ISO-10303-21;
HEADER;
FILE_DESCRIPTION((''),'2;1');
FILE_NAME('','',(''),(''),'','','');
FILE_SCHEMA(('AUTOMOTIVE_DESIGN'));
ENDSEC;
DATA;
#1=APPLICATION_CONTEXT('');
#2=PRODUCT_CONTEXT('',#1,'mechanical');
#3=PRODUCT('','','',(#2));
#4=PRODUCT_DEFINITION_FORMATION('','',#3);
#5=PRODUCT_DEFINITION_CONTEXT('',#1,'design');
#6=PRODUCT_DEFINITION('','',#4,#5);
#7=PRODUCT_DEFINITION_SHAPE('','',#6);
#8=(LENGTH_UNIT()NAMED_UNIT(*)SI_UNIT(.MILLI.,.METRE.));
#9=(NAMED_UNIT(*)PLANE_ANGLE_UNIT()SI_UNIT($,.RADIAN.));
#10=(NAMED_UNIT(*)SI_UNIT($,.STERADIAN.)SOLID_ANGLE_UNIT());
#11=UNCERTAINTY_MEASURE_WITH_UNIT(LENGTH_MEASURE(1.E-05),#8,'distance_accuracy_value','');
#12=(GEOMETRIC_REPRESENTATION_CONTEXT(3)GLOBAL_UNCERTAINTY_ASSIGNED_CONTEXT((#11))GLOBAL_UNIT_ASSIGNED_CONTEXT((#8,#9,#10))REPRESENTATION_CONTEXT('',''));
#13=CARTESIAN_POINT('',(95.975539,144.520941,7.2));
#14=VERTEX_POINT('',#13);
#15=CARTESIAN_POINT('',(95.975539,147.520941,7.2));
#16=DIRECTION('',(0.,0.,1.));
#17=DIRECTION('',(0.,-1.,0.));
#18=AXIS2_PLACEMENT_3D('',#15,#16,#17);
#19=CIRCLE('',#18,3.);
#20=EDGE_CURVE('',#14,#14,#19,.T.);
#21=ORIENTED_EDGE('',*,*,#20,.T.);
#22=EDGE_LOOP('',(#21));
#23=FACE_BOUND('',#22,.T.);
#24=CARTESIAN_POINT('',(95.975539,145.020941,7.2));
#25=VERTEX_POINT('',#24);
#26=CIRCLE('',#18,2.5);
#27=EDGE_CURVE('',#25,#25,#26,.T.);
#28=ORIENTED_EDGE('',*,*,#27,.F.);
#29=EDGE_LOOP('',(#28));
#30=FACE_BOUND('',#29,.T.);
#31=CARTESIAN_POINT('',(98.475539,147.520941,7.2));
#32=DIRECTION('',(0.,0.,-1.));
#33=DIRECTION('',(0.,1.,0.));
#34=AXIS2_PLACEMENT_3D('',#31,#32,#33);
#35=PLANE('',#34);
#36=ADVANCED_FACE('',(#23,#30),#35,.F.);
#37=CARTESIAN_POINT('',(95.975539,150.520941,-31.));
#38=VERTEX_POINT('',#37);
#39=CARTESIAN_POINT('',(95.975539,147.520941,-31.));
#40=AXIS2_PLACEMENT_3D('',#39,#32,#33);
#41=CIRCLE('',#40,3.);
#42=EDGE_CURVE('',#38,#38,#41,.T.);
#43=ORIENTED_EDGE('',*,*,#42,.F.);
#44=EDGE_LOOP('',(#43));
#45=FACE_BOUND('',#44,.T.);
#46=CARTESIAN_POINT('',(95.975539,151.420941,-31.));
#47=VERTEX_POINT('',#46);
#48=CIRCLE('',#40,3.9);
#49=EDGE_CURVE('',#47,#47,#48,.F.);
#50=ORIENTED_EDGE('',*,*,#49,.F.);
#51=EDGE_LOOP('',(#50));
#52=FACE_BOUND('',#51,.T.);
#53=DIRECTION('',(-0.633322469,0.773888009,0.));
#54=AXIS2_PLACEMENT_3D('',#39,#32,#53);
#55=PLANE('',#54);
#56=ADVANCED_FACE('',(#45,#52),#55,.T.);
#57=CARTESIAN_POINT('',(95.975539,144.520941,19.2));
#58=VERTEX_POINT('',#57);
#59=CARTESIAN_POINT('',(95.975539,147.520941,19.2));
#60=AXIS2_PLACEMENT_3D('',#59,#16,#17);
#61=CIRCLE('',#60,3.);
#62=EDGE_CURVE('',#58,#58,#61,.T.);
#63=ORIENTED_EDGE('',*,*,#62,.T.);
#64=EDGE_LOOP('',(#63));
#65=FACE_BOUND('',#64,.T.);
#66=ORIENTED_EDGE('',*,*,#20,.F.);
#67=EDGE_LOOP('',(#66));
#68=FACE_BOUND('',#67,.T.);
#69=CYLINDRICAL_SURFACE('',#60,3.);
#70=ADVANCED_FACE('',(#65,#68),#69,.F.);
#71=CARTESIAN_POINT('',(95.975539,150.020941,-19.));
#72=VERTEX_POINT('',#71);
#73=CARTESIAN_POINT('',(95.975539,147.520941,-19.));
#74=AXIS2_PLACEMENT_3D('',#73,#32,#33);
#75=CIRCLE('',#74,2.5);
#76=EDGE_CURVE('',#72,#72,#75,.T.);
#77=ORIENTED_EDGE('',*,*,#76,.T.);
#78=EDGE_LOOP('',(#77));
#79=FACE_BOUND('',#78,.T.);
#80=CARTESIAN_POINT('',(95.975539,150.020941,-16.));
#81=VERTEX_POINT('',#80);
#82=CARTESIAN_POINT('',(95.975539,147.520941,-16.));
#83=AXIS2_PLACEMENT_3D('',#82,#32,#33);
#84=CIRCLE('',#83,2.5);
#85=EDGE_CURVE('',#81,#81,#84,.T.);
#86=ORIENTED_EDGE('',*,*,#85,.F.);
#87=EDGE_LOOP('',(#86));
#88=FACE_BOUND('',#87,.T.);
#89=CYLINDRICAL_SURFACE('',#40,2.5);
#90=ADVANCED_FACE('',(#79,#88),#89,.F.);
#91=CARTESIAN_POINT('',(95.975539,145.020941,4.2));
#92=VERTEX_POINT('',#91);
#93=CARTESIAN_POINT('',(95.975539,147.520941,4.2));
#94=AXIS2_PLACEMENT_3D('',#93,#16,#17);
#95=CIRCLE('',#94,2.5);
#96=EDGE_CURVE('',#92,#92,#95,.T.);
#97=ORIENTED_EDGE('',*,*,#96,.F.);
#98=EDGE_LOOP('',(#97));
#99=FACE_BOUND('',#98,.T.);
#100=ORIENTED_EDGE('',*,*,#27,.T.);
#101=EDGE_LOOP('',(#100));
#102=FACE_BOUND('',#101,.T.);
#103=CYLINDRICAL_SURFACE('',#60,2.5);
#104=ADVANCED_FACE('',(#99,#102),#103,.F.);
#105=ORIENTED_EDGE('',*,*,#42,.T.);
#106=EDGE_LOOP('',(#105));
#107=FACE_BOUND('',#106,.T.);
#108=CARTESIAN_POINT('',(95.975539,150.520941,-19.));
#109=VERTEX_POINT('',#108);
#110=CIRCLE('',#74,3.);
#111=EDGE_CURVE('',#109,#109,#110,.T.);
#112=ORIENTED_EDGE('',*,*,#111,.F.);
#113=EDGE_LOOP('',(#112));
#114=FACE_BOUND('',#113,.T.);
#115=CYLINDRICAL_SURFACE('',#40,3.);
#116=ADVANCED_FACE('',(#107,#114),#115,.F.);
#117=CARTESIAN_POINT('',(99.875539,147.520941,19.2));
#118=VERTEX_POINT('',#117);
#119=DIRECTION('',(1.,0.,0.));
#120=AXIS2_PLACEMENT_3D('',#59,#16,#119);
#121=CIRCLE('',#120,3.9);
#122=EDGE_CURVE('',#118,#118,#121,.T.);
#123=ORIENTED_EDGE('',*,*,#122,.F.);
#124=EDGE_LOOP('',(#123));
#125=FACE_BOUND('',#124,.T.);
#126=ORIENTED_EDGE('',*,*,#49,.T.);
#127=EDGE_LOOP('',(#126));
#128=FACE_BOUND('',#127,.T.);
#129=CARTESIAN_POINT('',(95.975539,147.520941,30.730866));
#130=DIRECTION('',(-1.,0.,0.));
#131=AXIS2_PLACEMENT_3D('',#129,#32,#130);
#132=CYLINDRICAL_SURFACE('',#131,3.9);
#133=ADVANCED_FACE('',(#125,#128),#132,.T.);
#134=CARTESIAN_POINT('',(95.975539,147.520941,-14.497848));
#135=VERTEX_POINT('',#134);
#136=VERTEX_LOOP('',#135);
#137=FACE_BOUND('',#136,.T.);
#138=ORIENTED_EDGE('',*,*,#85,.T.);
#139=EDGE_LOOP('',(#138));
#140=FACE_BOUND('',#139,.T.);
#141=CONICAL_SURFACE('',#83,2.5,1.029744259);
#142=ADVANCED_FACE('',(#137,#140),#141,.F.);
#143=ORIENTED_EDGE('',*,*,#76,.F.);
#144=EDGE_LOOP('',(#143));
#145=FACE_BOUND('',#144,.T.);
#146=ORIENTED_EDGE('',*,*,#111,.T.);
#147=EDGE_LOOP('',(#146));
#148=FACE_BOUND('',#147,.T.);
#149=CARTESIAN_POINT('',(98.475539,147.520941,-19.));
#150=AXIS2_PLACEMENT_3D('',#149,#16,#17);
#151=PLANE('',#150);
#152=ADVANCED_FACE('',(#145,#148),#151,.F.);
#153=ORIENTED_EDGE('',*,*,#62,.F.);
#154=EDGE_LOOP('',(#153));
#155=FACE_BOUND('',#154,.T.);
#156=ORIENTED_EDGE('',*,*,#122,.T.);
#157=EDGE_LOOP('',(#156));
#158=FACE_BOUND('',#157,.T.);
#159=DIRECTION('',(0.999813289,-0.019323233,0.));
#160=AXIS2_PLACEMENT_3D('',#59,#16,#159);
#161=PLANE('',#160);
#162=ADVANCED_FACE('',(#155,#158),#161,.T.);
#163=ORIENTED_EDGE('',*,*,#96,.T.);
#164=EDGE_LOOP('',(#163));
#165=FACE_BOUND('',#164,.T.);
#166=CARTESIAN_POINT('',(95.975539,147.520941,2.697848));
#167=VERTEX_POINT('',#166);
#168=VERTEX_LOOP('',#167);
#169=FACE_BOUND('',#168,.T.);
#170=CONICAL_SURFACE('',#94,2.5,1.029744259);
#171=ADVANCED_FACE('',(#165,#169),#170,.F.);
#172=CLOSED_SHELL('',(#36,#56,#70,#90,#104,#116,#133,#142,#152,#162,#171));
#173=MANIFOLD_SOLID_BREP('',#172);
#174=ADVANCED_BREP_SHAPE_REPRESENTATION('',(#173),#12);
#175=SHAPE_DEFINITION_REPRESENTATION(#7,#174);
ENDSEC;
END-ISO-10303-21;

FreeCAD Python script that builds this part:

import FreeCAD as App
import Part
import Sketcher

V = App.Vector

doc = App.newDocument("Part")
body = doc.addObject("PartDesign::Body", "Body")

sketch1 = body.newObject("Sketcher::SketchObject", "Sketch")
sketch1.AttachmentSupport = (doc.getObject("XY_Plane"), [""])
sketch1.MapMode = "FlatFace"
sketch1.addGeometry(Part.Circle(V(96, 147.5, 0), V(0, 0, 1), 3.9), False)
sketch1.addConstraint(Sketcher.Constraint("Diameter", 0, 7.8))
sketch1.addConstraint(Sketcher.Constraint("DistanceX", -1, 1, 0, 3, 95.975539))
sketch1.addConstraint(Sketcher.Constraint("DistanceY", -1, 1, 0, 3, 147.520941))
pad1 = body.newObject("PartDesign::Pad", "Pad")
pad1.Profile = sketch1
pad1.Type = "TwoLengths"
pad1.Length = 19.2
pad1.Length2 = 31

sketch2 = body.newObject("Sketcher::SketchObject", "Sketch001")
sketch2.AttachmentSupport = (doc.getObject("XY_Plane"), [""])
sketch2.MapMode = "FlatFace"
sketch2.AttachmentOffset = App.Placement(V(0, 0, 19.2), App.Rotation())
sketch2.addGeometry(Part.Circle(V(96, 147.5, 0), V(0, 0, 1), 2.5), False)
sketch2.addConstraint(Sketcher.Constraint("Diameter", 0, 5.0))
sketch2.addConstraint(Sketcher.Constraint("DistanceX", -1, 1, 0, 3, 95.975539))
sketch2.addConstraint(Sketcher.Constraint("DistanceY", -1, 1, 0, 3, 147.520941))
doc.recompute()
hole = body.newObject("PartDesign::Hole", "Hole")
hole.Profile = sketch2
hole.ThreadType = "None"
hole.Diameter = 5
hole.DepthType = "Dimension"
hole.Depth = 15
hole.DrillPoint = "Angled"
hole.DrillPointAngle = 118
hole.HoleCutType = "Counterbore"
hole.HoleCutDiameter = 6
hole.HoleCutDepth = 12

sketch3 = body.newObject("Sketcher::SketchObject", "Sketch002")
sketch3.AttachmentSupport = (doc.getObject("XY_Plane"), [""])
sketch3.MapMode = "FlatFace"
sketch3.AttachmentOffset = App.Placement(V(0, 0, -31), App.Rotation())
sketch3.addGeometry(Part.Circle(V(96, 147.5, 0), V(0, 0, 1), 2.5), False)
sketch3.addConstraint(Sketcher.Constraint("Diameter", 0, 5.0))
sketch3.addConstraint(Sketcher.Constraint("DistanceX", -1, 1, 0, 3, 95.975539))
sketch3.addConstraint(Sketcher.Constraint("DistanceY", -1, 1, 0, 3, 147.520941))
doc.recompute()
hole2 = body.newObject("PartDesign::Hole", "Hole001")
hole2.Profile = sketch3
hole2.ThreadType = "None"
hole2.Diameter = 5
hole2.DepthType = "Dimension"
hole2.Depth = 15
hole2.DrillPoint = "Angled"
hole2.DrillPointAngle = 118
hole2.HoleCutType = "Counterbore"
hole2.HoleCutDiameter = 6
hole2.HoleCutDepth = 12
hole2.Reversed = True

doc.recompute()
